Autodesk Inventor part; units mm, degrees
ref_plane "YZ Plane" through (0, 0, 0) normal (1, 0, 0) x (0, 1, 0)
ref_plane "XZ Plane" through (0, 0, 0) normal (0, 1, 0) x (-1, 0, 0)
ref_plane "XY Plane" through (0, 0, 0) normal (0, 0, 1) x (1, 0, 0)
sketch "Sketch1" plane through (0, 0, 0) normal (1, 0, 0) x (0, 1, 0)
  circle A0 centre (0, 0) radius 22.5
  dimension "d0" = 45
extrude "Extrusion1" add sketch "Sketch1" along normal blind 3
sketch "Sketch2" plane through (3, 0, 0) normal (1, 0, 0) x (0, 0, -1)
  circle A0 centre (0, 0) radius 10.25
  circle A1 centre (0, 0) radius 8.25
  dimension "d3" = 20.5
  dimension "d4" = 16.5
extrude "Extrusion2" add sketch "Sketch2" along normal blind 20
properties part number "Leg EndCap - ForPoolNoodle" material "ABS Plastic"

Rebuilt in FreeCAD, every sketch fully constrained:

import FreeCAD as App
import Part
import Sketcher

V = App.Vector

doc = App.newDocument("Part")
body = doc.addObject("PartDesign::Body", "Body")

# Sketch on YZ plane
sketch1 = body.newObject("Sketcher::SketchObject", "Sketch")
sketch1.AttachmentSupport = (doc.getObject("YZ_Plane"), [""])
sketch1.MapMode = "FlatFace"
sketch1.addGeometry(Part.Circle(V(0, 0, 0), V(0, 0, 1), 22), False)
sketch1.addConstraint(Sketcher.Constraint("Coincident", 0, 3, -1, 1))
sketch1.addConstraint(Sketcher.Constraint("Diameter", 0, 45.0))
pad1 = body.newObject("PartDesign::Pad", "Pad")
pad1.Profile = sketch1
pad1.Length = 3

# Sketch on YZ plane
sketch2 = body.newObject("Sketcher::SketchObject", "Sketch001")
sketch2.AttachmentSupport = (doc.getObject("YZ_Plane"), [""])
sketch2.MapMode = "FlatFace"
sketch2.AttachmentOffset = App.Placement(V(0, 0, 3), App.Rotation())
sketch2.addGeometry(Part.Circle(V(0, 0, 0), V(0, 0, 1), 10), False)
sketch2.addGeometry(Part.Circle(V(0, 0, 0), V(0, 0, 1), 8), False)
sketch2.addConstraint(Sketcher.Constraint("Coincident", 0, 3, -1, 1))
sketch2.addConstraint(Sketcher.Constraint("Coincident", 1, 3, -1, 1))
sketch2.addConstraint(Sketcher.Constraint("Diameter", 0, 20.5))
sketch2.addConstraint(Sketcher.Constraint("Diameter", 1, 16.5))
pad2 = body.newObject("PartDesign::Pad", "Pad001")
pad2.Profile = sketch2
pad2.Length = 20

doc.recompute()
